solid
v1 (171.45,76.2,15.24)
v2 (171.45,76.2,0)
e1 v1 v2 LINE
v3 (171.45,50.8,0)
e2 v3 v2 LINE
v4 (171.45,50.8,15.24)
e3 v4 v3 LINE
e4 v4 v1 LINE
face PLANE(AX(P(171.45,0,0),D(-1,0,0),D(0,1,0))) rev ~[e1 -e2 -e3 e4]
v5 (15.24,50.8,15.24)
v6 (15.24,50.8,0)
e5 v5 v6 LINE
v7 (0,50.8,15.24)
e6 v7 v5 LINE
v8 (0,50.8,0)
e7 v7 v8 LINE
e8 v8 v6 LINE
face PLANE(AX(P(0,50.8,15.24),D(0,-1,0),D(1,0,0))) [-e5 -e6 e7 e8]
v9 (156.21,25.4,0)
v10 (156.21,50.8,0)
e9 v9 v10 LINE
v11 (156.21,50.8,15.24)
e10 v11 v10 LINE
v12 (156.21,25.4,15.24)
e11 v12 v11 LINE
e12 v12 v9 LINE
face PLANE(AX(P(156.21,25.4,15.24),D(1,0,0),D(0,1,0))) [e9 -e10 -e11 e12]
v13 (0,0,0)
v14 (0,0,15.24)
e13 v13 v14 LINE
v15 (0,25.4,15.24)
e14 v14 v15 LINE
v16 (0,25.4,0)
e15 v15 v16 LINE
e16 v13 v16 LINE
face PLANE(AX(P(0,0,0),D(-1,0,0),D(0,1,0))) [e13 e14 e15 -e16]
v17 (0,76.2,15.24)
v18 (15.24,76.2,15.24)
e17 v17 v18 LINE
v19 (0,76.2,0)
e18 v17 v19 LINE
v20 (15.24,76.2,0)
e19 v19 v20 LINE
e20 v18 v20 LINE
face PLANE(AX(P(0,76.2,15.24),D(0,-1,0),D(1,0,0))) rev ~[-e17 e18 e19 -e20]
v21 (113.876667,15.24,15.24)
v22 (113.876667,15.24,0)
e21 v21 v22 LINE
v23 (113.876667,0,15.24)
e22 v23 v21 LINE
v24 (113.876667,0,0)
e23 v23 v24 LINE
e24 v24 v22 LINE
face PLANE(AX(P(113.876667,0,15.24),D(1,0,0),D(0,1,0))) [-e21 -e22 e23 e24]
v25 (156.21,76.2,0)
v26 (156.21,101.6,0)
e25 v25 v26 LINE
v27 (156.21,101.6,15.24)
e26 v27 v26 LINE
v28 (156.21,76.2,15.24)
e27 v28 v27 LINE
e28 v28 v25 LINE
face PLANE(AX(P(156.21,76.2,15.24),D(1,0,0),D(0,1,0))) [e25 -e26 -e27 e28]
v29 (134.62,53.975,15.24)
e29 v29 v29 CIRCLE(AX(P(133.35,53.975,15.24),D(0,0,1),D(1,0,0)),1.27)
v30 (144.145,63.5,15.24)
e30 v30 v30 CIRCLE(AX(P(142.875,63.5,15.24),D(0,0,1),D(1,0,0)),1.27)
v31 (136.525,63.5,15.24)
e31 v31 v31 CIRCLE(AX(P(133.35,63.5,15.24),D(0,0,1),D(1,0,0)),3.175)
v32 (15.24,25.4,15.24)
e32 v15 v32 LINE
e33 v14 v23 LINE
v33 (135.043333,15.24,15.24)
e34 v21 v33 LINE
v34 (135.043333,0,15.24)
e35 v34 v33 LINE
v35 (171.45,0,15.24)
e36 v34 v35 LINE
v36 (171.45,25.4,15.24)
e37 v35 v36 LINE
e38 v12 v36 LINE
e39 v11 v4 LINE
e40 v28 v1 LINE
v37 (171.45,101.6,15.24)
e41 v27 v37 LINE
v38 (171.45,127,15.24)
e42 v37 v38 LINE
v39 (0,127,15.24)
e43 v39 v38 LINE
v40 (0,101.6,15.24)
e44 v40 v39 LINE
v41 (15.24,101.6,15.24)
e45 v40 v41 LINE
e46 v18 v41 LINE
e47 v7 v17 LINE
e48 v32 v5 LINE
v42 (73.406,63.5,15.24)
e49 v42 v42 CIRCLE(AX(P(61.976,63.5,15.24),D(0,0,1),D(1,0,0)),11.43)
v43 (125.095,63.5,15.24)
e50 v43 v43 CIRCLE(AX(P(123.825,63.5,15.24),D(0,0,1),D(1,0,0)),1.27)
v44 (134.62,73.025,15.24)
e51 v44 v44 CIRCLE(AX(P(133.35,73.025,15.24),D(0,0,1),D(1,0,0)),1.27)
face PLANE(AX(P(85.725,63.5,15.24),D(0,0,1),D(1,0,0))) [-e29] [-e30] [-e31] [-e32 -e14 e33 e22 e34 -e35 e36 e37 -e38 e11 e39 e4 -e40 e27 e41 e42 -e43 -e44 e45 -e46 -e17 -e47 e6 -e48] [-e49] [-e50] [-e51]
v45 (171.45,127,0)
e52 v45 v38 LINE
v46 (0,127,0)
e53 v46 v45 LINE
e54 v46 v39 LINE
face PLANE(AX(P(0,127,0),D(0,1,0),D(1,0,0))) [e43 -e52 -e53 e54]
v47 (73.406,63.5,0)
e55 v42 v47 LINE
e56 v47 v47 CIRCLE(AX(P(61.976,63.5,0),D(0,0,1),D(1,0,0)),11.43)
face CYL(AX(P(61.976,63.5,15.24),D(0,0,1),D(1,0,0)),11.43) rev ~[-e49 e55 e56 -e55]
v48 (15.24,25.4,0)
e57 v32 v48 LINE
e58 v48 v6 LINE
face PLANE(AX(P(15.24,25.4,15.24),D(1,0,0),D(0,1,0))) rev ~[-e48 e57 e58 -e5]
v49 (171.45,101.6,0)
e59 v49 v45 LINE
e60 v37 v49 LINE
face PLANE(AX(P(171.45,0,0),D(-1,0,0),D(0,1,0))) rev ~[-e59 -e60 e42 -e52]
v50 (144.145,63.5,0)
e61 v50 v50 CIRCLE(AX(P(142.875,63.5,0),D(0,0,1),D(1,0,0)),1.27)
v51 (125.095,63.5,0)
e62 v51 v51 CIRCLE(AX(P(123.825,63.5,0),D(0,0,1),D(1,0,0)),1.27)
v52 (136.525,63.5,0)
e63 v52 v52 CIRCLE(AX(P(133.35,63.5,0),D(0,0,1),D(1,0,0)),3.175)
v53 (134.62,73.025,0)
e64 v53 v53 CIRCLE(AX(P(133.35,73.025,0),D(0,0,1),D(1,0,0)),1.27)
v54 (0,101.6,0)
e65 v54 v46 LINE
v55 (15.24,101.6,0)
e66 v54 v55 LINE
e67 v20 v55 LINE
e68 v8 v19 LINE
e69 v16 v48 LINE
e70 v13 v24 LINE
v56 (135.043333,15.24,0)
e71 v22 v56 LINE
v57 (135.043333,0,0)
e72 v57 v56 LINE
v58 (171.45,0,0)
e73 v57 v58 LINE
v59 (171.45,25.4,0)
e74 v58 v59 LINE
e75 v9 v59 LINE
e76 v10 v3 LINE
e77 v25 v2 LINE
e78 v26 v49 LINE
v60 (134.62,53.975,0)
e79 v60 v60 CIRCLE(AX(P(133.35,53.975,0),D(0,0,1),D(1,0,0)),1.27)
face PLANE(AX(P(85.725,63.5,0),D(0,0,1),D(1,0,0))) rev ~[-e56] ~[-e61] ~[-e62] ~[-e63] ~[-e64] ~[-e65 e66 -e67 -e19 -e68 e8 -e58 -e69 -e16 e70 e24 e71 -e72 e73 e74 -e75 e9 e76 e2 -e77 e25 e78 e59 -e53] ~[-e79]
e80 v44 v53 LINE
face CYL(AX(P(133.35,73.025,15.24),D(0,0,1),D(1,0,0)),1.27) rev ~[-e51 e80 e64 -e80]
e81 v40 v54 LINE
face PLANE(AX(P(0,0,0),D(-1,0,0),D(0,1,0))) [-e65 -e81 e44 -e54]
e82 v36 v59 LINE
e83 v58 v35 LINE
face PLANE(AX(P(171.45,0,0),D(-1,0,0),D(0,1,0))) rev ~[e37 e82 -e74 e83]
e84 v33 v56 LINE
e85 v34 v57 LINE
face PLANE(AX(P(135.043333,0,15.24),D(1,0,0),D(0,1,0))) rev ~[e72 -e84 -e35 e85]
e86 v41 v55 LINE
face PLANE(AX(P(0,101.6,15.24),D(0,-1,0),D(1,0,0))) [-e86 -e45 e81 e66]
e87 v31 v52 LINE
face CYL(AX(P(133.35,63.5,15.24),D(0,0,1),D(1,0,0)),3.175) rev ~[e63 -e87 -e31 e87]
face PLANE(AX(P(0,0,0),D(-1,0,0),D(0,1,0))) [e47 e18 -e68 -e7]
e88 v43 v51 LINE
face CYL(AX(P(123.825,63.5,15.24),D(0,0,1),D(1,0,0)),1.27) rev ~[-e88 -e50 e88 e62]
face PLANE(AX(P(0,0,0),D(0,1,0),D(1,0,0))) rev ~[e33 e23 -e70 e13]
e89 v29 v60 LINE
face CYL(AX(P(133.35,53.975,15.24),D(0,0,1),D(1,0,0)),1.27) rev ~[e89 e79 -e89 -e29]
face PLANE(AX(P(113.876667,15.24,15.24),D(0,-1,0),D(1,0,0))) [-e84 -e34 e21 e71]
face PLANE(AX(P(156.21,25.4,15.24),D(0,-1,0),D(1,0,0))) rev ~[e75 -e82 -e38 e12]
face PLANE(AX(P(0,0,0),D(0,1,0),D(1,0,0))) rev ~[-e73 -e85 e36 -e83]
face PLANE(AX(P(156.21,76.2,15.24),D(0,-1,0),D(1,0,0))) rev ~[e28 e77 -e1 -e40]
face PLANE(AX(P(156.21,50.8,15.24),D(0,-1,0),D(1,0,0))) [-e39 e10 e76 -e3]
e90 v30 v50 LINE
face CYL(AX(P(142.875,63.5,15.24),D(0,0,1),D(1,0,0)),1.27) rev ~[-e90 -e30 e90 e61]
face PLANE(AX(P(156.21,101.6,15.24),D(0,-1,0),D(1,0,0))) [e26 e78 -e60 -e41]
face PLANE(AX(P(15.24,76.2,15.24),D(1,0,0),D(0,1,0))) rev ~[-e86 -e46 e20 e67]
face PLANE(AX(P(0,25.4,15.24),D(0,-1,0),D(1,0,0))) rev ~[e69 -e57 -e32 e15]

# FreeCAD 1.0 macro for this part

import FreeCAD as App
import Part
import Sketcher

V = App.Vector
Q = App.Units.Quantity

doc = App.newDocument("Part")
body = doc.addObject("PartDesign::Body", "Body")

sketch1 = body.newObject("Sketcher::SketchObject", "Sketch")
sketch1.AttachmentSupport = (doc.getObject("XY_Plane"), [""])
sketch1.MapMode = "FlatFace"
sketch1.addGeometry(Part.LineSegment(V(0, 127, 0), V(0, 0, 0)), False)
sketch1.addGeometry(Part.LineSegment(V(0, 0, 0), V(171, 0, 0)), False)
sketch1.addGeometry(Part.LineSegment(V(171, 0, 0), V(171, 127, 0)), False)
sketch1.addGeometry(Part.LineSegment(V(171, 127, 0), V(0, 127, 0)), False)
sketch1.addConstraint(Sketcher.Constraint("Coincident", 0, 2, 1, 1))
sketch1.addConstraint(Sketcher.Constraint("Coincident", 1, 2, 2, 1))
sketch1.addConstraint(Sketcher.Constraint("Coincident", 2, 2, 3, 1))
sketch1.addConstraint(Sketcher.Constraint("Coincident", 3, 2, 0, 1))
sketch1.addConstraint(Sketcher.Constraint("Vertical", 0))
sketch1.addConstraint(Sketcher.Constraint("Horizontal", 1))
sketch1.addConstraint(Sketcher.Constraint("Vertical", 2))
sketch1.addConstraint(Sketcher.Constraint("Horizontal", 3))
sketch1.addConstraint(Sketcher.Constraint("Coincident", 0, 2, -1, 1))
sketch1.addConstraint(Sketcher.Constraint("DistanceY", 0, 2, 0, 1, Q("5 in")))
sketch1.addConstraint(Sketcher.Constraint("DistanceX", 1, 1, 1, 2, Q("6.75 in")))
pad1 = body.newObject("PartDesign::Pad", "Pad")
pad1.Profile = sketch1
pad1.Length = Q("0.6 in")

sketch2 = body.newObject("Sketcher::SketchObject", "Sketch001")
sketch2.AttachmentSupport = (doc.getObject("XY_Plane"), [""])
sketch2.MapMode = "FlatFace"
sketch2.AttachmentOffset = App.Placement(V(0, 0, 0.6 * 25.4), App.Rotation())
sketch2.addGeometry(Part.LineSegment(V(0, 102, 0), V(0, 76, 0)), False)
sketch2.addGeometry(Part.LineSegment(V(0, 76, 0), V(15, 76, 0)), False)
sketch2.addGeometry(Part.LineSegment(V(15, 76, 0), V(15, 102, 0)), False)
sketch2.addGeometry(Part.LineSegment(V(15, 102, 0), V(0, 102, 0)), False)
sketch2.addGeometry(Part.LineSegment(V(0, 51, 0), V(0, 25, 0)), False)
sketch2.addGeometry(Part.LineSegment(V(0, 25, 0), V(15, 25, 0)), False)
sketch2.addGeometry(Part.LineSegment(V(15, 25, 0), V(15, 51, 0)), False)
sketch2.addGeometry(Part.LineSegment(V(15, 51, 0), V(0, 51, 0)), False)
sketch2.addGeometry(Part.LineSegment(V(156, 102, 0), V(156, 76, 0)), False)
sketch2.addGeometry(Part.LineSegment(V(156, 76, 0), V(171, 76, 0)), False)
sketch2.addGeometry(Part.LineSegment(V(171, 76, 0), V(171, 102, 0)), False)
sketch2.addGeometry(Part.LineSegment(V(171, 102, 0), V(156, 102, 0)), False)
sketch2.addGeometry(Part.LineSegment(V(156, 51, 0), V(156, 25, 0)), False)
sketch2.addGeometry(Part.LineSegment(V(156, 25, 0), V(171, 25, 0)), False)
sketch2.addGeometry(Part.LineSegment(V(171, 25, 0), V(171, 51, 0)), False)
sketch2.addGeometry(Part.LineSegment(V(171, 51, 0), V(156, 51, 0)), False)
sketch2.addConstraint(Sketcher.Constraint("Coincident", 0, 2, 1, 1))
sketch2.addConstraint(Sketcher.Constraint("Coincident", 1, 2, 2, 1))
sketch2.addConstraint(Sketcher.Constraint("Coincident", 2, 2, 3, 1))
sketch2.addConstraint(Sketcher.Constraint("Coincident", 3, 2, 0, 1))
sketch2.addConstraint(Sketcher.Constraint("Coincident", 4, 2, 5, 1))
sketch2.addConstraint(Sketcher.Constraint("Coincident", 5, 2, 6, 1))
sketch2.addConstraint(Sketcher.Constraint("Coincident", 6, 2, 7, 1))
sketch2.addConstraint(Sketcher.Constraint("Coincident", 7, 2, 4, 1))
sketch2.addConstraint(Sketcher.Constraint("Coincident", 8, 2, 9, 1))
sketch2.addConstraint(Sketcher.Constraint("Coincident", 9, 2, 10, 1))
sketch2.addConstraint(Sketcher.Constraint("Coincident", 10, 2, 11, 1))
sketch2.addConstraint(Sketcher.Constraint("Coincident", 11, 2, 8, 1))
sketch2.addConstraint(Sketcher.Constraint("Coincident", 12, 2, 13, 1))
sketch2.addConstraint(Sketcher.Constraint("Coincident", 13, 2, 14, 1))
sketch2.addConstraint(Sketcher.Constraint("Coincident", 14, 2, 15, 1))
sketch2.addConstraint(Sketcher.Constraint("Coincident", 15, 2, 12, 1))
sketch2.addConstraint(Sketcher.Constraint("Vertical", 0))
sketch2.addConstraint(Sketcher.Constraint("Horizontal", 1))
sketch2.addConstraint(Sketcher.Constraint("Vertical", 2))
sketch2.addConstraint(Sketcher.Constraint("Horizontal", 3))
sketch2.addConstraint(Sketcher.Constraint("Vertical", 4))
sketch2.addConstraint(Sketcher.Constraint("Horizontal", 5))
sketch2.addConstraint(Sketcher.Constraint("Vertical", 6))
sketch2.addConstraint(Sketcher.Constraint("Horizontal", 7))
sketch2.addConstraint(Sketcher.Constraint("Vertical", 8))
sketch2.addConstraint(Sketcher.Constraint("Horizontal", 9))
sketch2.addConstraint(Sketcher.Constraint("Vertical", 10))
sketch2.addConstraint(Sketcher.Constraint("Horizontal", 11))
sketch2.addConstraint(Sketcher.Constraint("Vertical", 12))
sketch2.addConstraint(Sketcher.Constraint("Horizontal", 13))
sketch2.addConstraint(Sketcher.Constraint("Vertical", 14))
sketch2.addConstraint(Sketcher.Constraint("Horizontal", 15))
sketch2.addConstraint(Sketcher.Constraint("PointOnObject", 0, 2, -2))
sketch2.addConstraint(Sketcher.Constraint("PointOnObject", 4, 2, -2))
sketch2.addConstraint(Sketcher.Constraint("Horizontal", 1, 2, 8, 2))
sketch2.addConstraint(Sketcher.Constraint("Horizontal", 3, 2, 10, 2))
sketch2.addConstraint(Sketcher.Constraint("Horizontal", 5, 2, 12, 2))
sketch2.addConstraint(Sketcher.Constraint("Horizontal", 7, 2, 14, 2))
sketch2.addConstraint(Sketcher.Constraint("Vertical", 2, 2, 5, 2))
sketch2.addConstraint(Sketcher.Constraint("Vertical", 11, 2, 12, 2))
sketch2.addConstraint(Sketcher.Constraint("Vertical", 10, 2, 13, 2))
sketch2.addConstraint(Sketcher.Constraint("Equal", 7, 9))
sketch2.addConstraint(Sketcher.Constraint("Equal", 2, 4))
sketch2.addConstraint(Sketcher.Constraint("DistanceY", 0, 2, 0, 1, Q("1 in")))
sketch2.addConstraint(Sketcher.Constraint("DistanceX", 1, 1, 1, 2, Q("0.6 in")))
sketch2.addConstraint(Sketcher.Constraint("DistanceY", -1, 1, 0, 2, Q("3 in")))
sketch2.addConstraint(Sketcher.Constraint("DistanceY", -1, 1, 4, 2, Q("1 in")))
sketch2.addConstraint(Sketcher.Constraint("DistanceX", -1, 1, 8, 2, Q("6.15 in")))
pocket1 = body.newObject("PartDesign::Pocket", "Pocket")
pocket1.Profile = sketch2
pocket1.Length = Q("0.6 in")

sketch3 = body.newObject("Sketcher::SketchObject", "Sketch002")
sketch3.AttachmentSupport = (doc.getObject("XY_Plane"), [""])
sketch3.MapMode = "FlatFace"
sketch3.AttachmentOffset = App.Placement(V(0, 0, 0.6 * 25.4), App.Rotation())
sketch3.addGeometry(Part.Circle(V(62, 64, 0), V(0, 0, 1), 11), False)
sketch3.addConstraint(Sketcher.Constraint("Diameter", 0, Q("0.9 in")))
sketch3.addConstraint(Sketcher.Constraint("DistanceY", -1, 1, 0, 3, Q("2.5 in")))
sketch3.addConstraint(Sketcher.Constraint("DistanceX", -1, 1, 0, 3, Q("2.44 in")))
pocket2 = body.newObject("PartDesign::Pocket", "Pocket001")
pocket2.Profile = sketch3
pocket2.Length = Q("0.6 in")

sketch4 = body.newObject("Sketcher::SketchObject", "Sketch003")
sketch4.AttachmentSupport = (doc.getObject("XY_Plane"), [""])
sketch4.MapMode = "FlatFace"
sketch4.AttachmentOffset = App.Placement(V(0, 0, 0.6 * 25.4), App.Rotation())
sketch4.addGeometry(Part.Circle(V(133.3, 63.5, 0), V(0, 0, 1), 3.2), False)
sketch4.addGeometry(Part.Circle(V(133.3, 73, 0), V(0, 0, 1), 1.3), False)
sketch4.addGeometry(Part.Circle(V(142.9, 63.5, 0), V(0, 0, 1), 1.3), False)
sketch4.addGeometry(Part.Circle(V(133.3, 54, 0), V(0, 0, 1), 1.3), False)
sketch4.addGeometry(Part.Circle(V(123.8, 63.5, 0), V(0, 0, 1), 1.3), False)
sketch4.addConstraint(Sketcher.Constraint("Equal", 1, 2))
sketch4.addConstraint(Sketcher.Constraint("Equal", 2, 3))
sketch4.addConstraint(Sketcher.Constraint("Equal", 3, 4))
sketch4.addConstraint(Sketcher.Constraint("Horizontal", 0, 3, 2, 3))
sketch4.addConstraint(Sketcher.Constraint("Horizontal", 2, 3, 4, 3))
sketch4.addConstraint(Sketcher.Constraint("Vertical", 0, 3, 1, 3))
sketch4.addConstraint(Sketcher.Constraint("Vertical", 1, 3, 3, 3))
sketch4.addConstraint(Sketcher.Constraint("Diameter", 1, Q("0.1 in")))
sketch4.addConstraint(Sketcher.Constraint("Diameter", 0, Q("0.25 in")))
sketch4.addConstraint(Sketcher.Constraint("DistanceY", -1, 1, 0, 3, Q("2.5 in")))
sketch4.addConstraint(Sketcher.Constraint("DistanceX", -1, 1, 0, 3, Q("5.25 in")))
sketch4.addConstraint(Sketcher.Constraint("DistanceY", 3, 3, 1, 3, Q("0.75 in")))
sketch4.addConstraint(Sketcher.Constraint("DistanceX", 4, 3, 2, 3, Q("0.75 in")))
sketch4.addConstraint(Sketcher.Constraint("DistanceY", -1, 1, 1, 3, Q("2.875 in")))
sketch4.addConstraint(Sketcher.Constraint("DistanceX", -1, 1, 2, 3, Q("5.625 in")))
pocket3 = body.newObject("PartDesign::Pocket", "Pocket002")
pocket3.Profile = sketch4
pocket3.Length = Q("0.6 in")

sketch5 = body.newObject("Sketcher::SketchObject", "Sketch004")
sketch5.AttachmentSupport = (doc.getObject("XY_Plane"), [""])
sketch5.MapMode = "FlatFace"
sketch5.AttachmentOffset = App.Placement(V(0, 0, 0.6 * 25.4), App.Rotation())
sketch5.addGeometry(Part.LineSegment(V(114, 15, 0), V(114, 0, 0)), False)
sketch5.addGeometry(Part.LineSegment(V(114, 0, 0), V(135, 0, 0)), False)
sketch5.addGeometry(Part.LineSegment(V(135, 0, 0), V(135, 15, 0)), False)
sketch5.addGeometry(Part.LineSegment(V(135, 15, 0), V(114, 15, 0)), False)
sketch5.addConstraint(Sketcher.Constraint("Coincident", 0, 2, 1, 1))
sketch5.addConstraint(Sketcher.Constraint("Coincident", 1, 2, 2, 1))
sketch5.addConstraint(Sketcher.Constraint("Coincident", 2, 2, 3, 1))
sketch5.addConstraint(Sketcher.Constraint("Coincident", 3, 2, 0, 1))
sketch5.addConstraint(Sketcher.Constraint("Vertical", 0))
sketch5.addConstraint(Sketcher.Constraint("Horizontal", 1))
sketch5.addConstraint(Sketcher.Constraint("Vertical", 2))
sketch5.addConstraint(Sketcher.Constraint("Horizontal", 3))
sketch5.addConstraint(Sketcher.Constraint("PointOnObject", 0, 2, -1))
sketch5.addConstraint(Sketcher.Constraint("DistanceY", 0, 2, 0, 1, Q("0.6 in")))
sketch5.addConstraint(Sketcher.Constraint("DistanceX", 1, 1, 1, 2, 21.166667))
sketch5.addConstraint(Sketcher.Constraint("DistanceX", -1, 1, 0, 2, 113.876667))
pocket4 = body.newObject("PartDesign::Pocket", "Pocket003")
pocket4.Profile = sketch5
pocket4.Length = Q("0.6 in")

doc.recompute()
